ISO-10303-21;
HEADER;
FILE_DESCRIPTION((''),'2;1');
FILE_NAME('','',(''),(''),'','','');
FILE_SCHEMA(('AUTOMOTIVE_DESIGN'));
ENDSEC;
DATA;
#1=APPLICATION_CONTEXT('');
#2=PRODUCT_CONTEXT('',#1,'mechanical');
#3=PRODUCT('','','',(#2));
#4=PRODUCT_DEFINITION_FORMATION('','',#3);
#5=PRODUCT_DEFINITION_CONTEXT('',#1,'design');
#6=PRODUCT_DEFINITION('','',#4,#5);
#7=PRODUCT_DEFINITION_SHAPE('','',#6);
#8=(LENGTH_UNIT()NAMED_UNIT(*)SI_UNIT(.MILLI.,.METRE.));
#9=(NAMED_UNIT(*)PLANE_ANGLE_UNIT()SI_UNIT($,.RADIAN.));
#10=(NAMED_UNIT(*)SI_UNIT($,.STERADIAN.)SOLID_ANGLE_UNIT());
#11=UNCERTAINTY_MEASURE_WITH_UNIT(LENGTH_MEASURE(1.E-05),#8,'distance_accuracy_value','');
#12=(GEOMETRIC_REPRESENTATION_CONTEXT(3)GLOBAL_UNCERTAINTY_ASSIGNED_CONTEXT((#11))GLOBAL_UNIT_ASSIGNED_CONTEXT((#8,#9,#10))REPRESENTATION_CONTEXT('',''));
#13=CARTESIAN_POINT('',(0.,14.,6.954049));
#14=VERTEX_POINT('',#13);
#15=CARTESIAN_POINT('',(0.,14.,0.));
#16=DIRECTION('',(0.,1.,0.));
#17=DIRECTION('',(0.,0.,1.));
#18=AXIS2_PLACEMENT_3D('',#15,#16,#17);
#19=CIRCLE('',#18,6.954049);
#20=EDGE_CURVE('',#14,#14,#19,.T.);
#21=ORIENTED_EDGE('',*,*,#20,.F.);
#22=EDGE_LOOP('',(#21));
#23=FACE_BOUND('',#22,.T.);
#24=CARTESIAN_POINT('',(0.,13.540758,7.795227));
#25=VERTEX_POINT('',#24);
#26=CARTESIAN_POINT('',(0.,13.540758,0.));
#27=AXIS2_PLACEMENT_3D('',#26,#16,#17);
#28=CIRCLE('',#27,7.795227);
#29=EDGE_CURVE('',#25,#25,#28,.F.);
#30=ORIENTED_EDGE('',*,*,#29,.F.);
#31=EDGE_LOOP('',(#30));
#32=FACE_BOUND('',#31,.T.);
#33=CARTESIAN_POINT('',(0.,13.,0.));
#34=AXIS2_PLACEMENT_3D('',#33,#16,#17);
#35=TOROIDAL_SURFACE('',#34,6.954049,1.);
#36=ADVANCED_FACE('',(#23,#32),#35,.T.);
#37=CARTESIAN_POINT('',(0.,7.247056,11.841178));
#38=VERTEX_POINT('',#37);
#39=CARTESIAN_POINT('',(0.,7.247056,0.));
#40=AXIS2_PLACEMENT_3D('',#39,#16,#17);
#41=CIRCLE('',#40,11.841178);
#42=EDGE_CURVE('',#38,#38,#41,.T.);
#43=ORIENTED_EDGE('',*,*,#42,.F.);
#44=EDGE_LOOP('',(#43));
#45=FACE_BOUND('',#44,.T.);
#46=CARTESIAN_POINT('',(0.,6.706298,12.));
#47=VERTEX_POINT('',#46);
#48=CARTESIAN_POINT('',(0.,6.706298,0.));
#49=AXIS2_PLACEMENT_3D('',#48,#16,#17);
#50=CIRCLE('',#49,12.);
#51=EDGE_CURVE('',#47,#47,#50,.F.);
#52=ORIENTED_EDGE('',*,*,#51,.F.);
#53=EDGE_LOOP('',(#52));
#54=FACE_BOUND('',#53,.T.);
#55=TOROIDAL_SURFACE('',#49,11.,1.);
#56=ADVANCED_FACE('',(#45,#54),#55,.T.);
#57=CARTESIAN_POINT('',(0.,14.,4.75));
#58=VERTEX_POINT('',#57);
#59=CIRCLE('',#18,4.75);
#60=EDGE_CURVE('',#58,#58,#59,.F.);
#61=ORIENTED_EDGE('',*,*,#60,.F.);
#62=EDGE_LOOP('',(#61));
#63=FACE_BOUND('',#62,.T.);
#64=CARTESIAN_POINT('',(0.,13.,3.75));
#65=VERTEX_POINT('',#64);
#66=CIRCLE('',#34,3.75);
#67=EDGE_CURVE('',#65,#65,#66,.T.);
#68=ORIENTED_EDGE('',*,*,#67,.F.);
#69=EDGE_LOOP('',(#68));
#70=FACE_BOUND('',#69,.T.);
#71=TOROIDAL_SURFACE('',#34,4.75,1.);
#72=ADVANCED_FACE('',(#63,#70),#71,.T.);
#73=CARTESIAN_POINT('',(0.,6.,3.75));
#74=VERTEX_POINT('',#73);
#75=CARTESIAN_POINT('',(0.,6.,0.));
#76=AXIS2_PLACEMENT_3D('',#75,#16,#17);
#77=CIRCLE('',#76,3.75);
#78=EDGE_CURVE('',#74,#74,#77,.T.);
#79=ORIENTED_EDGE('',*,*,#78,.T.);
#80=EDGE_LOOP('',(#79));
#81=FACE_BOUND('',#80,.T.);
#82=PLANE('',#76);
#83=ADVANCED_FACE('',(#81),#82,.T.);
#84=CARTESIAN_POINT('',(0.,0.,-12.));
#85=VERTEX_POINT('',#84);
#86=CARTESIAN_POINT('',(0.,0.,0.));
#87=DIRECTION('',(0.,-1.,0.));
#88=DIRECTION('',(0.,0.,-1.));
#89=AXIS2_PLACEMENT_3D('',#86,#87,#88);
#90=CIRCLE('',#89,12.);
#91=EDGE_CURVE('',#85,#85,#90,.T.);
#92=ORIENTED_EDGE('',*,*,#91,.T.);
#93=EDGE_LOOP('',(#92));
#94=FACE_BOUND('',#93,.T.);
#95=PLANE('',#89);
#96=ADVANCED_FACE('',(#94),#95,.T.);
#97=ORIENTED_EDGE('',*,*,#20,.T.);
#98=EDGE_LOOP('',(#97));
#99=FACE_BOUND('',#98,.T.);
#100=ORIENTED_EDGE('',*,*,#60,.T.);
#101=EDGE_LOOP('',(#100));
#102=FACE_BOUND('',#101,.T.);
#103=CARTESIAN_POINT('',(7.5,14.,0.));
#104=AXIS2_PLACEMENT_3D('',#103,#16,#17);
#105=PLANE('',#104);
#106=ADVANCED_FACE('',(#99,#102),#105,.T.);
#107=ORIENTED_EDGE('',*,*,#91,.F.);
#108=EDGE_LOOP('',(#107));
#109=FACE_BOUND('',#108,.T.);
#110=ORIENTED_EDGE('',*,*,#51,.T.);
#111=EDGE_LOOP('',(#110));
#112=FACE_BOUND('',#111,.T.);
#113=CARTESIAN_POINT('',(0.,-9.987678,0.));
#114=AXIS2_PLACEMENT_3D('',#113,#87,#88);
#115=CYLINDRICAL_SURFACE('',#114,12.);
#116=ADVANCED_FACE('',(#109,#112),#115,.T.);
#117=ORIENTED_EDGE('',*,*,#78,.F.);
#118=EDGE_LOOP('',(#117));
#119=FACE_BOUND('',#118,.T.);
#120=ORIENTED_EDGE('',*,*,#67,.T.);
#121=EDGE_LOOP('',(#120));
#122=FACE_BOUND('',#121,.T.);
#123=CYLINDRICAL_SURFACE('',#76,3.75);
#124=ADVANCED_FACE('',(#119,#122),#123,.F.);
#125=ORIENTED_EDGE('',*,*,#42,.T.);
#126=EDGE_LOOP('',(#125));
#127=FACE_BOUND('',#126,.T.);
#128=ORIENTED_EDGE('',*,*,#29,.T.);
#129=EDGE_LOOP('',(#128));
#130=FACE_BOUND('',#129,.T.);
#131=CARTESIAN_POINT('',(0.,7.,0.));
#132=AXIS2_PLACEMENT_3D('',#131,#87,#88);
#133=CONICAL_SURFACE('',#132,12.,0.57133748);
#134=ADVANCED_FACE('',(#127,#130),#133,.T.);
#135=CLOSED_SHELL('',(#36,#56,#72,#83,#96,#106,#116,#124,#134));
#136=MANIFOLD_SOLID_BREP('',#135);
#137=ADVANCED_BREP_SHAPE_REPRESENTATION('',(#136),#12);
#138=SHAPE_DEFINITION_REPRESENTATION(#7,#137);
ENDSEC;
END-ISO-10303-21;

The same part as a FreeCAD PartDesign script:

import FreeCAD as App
import Part
import Sketcher
from FreeCAD import Vector
Q = App.Units.Quantity


def edges_at(feature, points):
    """Names of the edges that pass closest to the given points."""
    edges = feature.Shape.Edges
    near = lambda p: min(range(len(edges)), key=lambda i: edges[i].distToShape(Part.Vertex(*p))[0])
    return sorted({f"Edge{near(p) + 1}" for p in points})

doc = App.newDocument("Part")
body = doc.addObject("PartDesign::Body", "Body")

# Sketch on XY plane
sketch1 = body.newObject("Sketcher::SketchObject", "Sketch")
sketch1.AttachmentSupport = (doc.getObject("XY_Plane"), [""])
sketch1.MapMode = "FlatFace"
sketch1.addGeometry([
    Part.LineSegment(Vector(0, 0, 0), Vector(12, 0, 0)),  # 0
    Part.LineSegment(Vector(12, 0, 0), Vector(12, 7, 0)),  # 1
    Part.LineSegment(Vector(12, 7, 0), Vector(7.5, 14, 0)),  # 2
    Part.LineSegment(Vector(7.5, 14, 0), Vector(0, 14, 0)),  # 3
    Part.LineSegment(Vector(0, 14, 0), Vector(0, 0, 0)),  # 4
], False)
sketch1.addConstraint([
    Sketcher.Constraint("Coincident", 0, 2, 1, 1),
    Sketcher.Constraint("Coincident", 1, 2, 2, 1),
    Sketcher.Constraint("Coincident", 2, 2, 3, 1),
    Sketcher.Constraint("Coincident", 3, 2, 4, 1),
    Sketcher.Constraint("Coincident", 4, 2, 0, 1),
    Sketcher.Constraint("Horizontal", 0),
    Sketcher.Constraint("Vertical", 1),
    Sketcher.Constraint("Horizontal", 3),
    Sketcher.Constraint("Vertical", 4),
    Sketcher.Constraint("Coincident", 4, 2, -1, 1),
    Sketcher.Constraint("DistanceX", 0, 1, 0, 2, Q("12 mm")),
    Sketcher.Constraint("DistanceY", 1, 1, 1, 2, Q("7 mm")),
    Sketcher.Constraint("DistanceY", 4, 2, 4, 1, Q("14 mm")),
    Sketcher.Constraint("DistanceX", 3, 2, 3, 1, Q("7.5 mm")),
])
revolution = body.newObject("PartDesign::Revolution", "Revolution")
revolution.Profile = sketch1
revolution.ReferenceAxis = (sketch1, ["V_Axis"])
revolution.Angle = 360

# Sketch on XZ plane
sketch2 = body.newObject("Sketcher::SketchObject", "Sketch001")
sketch2.AttachmentSupport = (doc.getObject("XZ_Plane"), [""])
sketch2.MapMode = "FlatFace"
sketch2.AttachmentOffset = App.Placement(Vector(0, 0, -14), App.Rotation())
sketch2.addGeometry(Part.Circle(Vector(0, 0, 0), Vector(0, 0, 1), 3.75), False)
sketch2.addConstraint([
    Sketcher.Constraint("Coincident", 0, 3, -1, 1),
    Sketcher.Constraint("Diameter", 0, Q("7.5 mm")),
])
pocket1 = body.newObject("PartDesign::Pocket", "Pocket")
pocket1.Profile = sketch2
pocket1.Length = 8
pocket1.Reversed = True
doc.recompute()

fillet = body.newObject("PartDesign::Fillet", "Fillet")
fillet.Base = (pocket1, edges_at(pocket1, [(-3.75, 14, 0), (-7.5, 14, 0), (-12, 7, 0)]))
fillet.Radius = 1

doc.recompute()
